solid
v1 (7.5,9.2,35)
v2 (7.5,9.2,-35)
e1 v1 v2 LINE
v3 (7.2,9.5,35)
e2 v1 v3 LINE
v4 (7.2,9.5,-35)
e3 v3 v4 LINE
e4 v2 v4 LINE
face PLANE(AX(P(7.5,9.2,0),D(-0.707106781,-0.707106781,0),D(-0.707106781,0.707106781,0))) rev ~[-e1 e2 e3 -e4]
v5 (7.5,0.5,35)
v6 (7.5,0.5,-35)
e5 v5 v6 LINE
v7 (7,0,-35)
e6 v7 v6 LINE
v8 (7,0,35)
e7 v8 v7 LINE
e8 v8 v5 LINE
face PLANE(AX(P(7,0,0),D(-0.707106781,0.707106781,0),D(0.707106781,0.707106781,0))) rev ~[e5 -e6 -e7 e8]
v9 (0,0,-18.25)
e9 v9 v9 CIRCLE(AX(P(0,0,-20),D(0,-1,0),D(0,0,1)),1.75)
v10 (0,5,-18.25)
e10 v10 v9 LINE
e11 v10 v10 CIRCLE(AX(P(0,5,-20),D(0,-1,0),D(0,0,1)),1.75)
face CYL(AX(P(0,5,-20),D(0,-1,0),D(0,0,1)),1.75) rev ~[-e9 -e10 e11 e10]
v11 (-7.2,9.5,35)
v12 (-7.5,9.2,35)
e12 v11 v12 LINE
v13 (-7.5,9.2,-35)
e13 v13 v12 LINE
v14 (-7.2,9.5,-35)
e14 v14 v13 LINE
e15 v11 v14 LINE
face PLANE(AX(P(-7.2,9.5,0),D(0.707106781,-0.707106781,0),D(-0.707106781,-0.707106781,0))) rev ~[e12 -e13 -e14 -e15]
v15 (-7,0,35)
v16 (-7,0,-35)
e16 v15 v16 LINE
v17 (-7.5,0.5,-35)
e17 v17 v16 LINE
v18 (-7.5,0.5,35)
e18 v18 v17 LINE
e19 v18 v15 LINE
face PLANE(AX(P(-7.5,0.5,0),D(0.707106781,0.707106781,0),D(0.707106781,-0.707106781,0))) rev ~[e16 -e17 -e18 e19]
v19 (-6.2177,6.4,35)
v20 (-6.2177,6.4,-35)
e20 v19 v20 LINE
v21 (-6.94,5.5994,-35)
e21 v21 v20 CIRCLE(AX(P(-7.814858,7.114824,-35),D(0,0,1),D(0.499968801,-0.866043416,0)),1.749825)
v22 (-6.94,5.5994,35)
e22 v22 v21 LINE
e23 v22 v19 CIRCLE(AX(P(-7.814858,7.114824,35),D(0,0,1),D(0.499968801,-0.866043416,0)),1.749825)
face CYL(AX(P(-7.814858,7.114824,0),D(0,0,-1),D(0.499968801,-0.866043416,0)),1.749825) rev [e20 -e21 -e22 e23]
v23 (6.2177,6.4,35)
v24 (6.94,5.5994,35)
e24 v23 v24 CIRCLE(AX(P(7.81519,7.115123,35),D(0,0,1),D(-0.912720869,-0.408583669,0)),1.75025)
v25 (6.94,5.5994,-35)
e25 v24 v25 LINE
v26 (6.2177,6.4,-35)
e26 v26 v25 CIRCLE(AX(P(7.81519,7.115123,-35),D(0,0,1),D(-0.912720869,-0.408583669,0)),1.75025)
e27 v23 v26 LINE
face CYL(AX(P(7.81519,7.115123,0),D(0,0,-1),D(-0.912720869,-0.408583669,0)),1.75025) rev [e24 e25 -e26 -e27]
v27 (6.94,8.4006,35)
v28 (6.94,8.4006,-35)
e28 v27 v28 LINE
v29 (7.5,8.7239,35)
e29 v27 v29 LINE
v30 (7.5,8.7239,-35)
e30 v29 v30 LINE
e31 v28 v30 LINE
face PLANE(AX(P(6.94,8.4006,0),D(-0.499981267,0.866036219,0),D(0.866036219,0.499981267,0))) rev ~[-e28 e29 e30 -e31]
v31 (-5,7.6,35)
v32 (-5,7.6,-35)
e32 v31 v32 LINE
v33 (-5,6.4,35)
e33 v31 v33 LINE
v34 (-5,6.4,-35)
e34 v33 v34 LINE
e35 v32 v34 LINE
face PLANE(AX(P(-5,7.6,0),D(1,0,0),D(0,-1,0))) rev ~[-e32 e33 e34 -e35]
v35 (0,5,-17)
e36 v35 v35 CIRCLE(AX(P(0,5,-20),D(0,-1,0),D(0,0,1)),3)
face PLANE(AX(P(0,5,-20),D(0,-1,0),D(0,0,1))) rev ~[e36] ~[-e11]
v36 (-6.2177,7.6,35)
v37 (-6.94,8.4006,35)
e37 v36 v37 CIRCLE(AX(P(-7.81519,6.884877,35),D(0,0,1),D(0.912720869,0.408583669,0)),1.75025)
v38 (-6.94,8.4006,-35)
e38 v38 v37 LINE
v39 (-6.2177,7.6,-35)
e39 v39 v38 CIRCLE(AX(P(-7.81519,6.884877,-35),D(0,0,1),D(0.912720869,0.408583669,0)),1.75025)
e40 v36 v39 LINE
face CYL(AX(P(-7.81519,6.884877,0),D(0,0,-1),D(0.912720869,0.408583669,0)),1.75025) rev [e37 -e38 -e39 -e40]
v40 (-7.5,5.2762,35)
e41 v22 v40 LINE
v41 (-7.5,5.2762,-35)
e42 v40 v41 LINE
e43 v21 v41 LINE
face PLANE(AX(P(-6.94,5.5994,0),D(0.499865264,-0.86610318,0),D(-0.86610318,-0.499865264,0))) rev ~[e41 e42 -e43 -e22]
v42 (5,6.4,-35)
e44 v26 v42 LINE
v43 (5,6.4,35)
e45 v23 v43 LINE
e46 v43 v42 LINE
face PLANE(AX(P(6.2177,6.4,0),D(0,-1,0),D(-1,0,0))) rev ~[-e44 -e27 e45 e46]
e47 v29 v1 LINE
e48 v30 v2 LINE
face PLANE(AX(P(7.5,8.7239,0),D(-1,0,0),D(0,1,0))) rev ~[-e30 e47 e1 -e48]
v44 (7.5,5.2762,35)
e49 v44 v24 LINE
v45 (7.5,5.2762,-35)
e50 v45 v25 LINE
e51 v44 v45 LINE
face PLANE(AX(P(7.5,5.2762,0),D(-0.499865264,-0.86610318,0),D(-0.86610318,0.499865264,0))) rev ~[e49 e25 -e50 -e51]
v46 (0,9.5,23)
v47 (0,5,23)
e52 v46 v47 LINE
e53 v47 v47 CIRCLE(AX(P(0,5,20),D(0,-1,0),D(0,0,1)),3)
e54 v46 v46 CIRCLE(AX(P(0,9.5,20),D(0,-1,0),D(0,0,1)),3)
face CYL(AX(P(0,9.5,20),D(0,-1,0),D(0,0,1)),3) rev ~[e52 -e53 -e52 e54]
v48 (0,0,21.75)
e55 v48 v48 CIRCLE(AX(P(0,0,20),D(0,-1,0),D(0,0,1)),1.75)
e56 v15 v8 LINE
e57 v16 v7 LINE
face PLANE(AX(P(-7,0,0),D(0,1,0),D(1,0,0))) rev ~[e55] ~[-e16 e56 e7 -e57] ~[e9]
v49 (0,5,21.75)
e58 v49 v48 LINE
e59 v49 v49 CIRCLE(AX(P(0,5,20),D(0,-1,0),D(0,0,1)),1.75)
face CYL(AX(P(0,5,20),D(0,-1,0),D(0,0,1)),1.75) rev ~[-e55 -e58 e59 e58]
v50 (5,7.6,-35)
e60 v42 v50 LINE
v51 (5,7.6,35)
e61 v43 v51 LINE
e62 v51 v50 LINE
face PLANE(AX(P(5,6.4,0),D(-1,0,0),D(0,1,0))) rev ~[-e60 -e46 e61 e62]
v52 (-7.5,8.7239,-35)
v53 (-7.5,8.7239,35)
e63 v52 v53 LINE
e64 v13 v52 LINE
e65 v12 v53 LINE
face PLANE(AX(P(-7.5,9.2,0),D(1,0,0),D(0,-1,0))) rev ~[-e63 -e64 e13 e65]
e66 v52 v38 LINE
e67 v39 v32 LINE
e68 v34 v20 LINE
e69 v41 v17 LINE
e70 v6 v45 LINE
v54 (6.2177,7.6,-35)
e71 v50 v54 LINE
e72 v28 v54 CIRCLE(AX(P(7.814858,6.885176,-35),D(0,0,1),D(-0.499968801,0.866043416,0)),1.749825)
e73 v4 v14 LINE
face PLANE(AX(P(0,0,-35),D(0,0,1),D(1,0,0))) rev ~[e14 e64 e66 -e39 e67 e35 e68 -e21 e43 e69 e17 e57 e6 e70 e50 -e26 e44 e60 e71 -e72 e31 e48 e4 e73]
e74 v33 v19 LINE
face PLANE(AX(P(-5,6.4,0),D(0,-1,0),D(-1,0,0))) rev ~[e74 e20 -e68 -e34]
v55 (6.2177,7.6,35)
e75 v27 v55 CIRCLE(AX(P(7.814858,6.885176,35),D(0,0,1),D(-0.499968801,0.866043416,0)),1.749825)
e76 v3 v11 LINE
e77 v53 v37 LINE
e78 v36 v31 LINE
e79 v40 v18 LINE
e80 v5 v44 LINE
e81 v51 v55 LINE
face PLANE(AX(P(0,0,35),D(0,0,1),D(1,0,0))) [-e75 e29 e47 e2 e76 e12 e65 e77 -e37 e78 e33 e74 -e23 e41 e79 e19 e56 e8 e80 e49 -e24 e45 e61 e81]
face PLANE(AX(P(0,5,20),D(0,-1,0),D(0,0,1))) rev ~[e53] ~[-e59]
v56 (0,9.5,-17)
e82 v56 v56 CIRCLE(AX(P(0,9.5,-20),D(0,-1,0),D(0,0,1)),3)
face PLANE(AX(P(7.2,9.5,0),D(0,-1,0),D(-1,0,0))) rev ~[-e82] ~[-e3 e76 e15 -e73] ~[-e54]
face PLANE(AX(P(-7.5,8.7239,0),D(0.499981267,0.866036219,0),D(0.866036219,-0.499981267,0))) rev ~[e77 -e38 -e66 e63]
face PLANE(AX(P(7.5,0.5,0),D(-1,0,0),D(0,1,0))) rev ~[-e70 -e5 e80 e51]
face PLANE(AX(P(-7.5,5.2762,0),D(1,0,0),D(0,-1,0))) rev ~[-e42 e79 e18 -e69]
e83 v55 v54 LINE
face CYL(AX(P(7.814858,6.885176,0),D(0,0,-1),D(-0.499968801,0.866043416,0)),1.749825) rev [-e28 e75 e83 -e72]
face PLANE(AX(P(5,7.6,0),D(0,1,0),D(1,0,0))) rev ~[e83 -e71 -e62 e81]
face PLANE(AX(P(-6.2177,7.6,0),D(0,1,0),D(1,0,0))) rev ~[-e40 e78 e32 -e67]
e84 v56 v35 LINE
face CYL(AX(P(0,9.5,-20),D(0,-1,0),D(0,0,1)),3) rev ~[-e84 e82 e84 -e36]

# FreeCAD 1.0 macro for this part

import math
import FreeCAD as App
import Part
import Sketcher
Q = App.Units.Quantity

doc = App.newDocument("Part")
body = doc.addObject("PartDesign::Body", "Body")

# Sketch on XY plane
sketch1 = body.newObject("Sketcher::SketchObject", "Sketch")
sketch1.AttachmentSupport = (doc.getObject("XY_Plane"), [""])
sketch1.MapMode = "FlatFace"
sketch1.addGeometry(Part.LineSegment(App.Vector(-7.2, 9.5, 0), App.Vector(-7.5, 9.2, 0)), False)
sketch1.addGeometry(Part.LineSegment(App.Vector(-7.5, 9.2, 0), App.Vector(-7.5, 8.7239, 0)), False)
sketch1.addGeometry(Part.LineSegment(App.Vector(-7.5, 8.7239, 0), App.Vector(-6.94, 8.4006, 0)), False)
sketch1.addGeometry(Part.ArcOfCircle(Part.Circle(App.Vector(-7.815, 6.885, 0), App.Vector(0, 0, 1), 1.750026), math.radians(24.114739), math.radians(60.000909)), False)
sketch1.addGeometry(Part.LineSegment(App.Vector(-6.2177, 7.6, 0), App.Vector(-5, 7.6, 0)), False)
sketch1.addGeometry(Part.LineSegment(App.Vector(-5, 7.6, 0), App.Vector(-5, 6.4, 0)), False)
sketch1.addGeometry(Part.LineSegment(App.Vector(-5, 6.4, 0), App.Vector(-6.2177, 6.4, 0)), False)
sketch1.addGeometry(Part.ArcOfCircle(Part.Circle(App.Vector(-7.815, 7.115, 0), App.Vector(0, 0, 1), 1.750048), math.radians(-60.000909), math.radians(-24.114739)), False)
sketch1.addGeometry(Part.LineSegment(App.Vector(-6.94, 5.5994, 0), App.Vector(-7.5, 5.2762, 0)), False)
sketch1.addGeometry(Part.LineSegment(App.Vector(-7.5, 5.2762, 0), App.Vector(-7.5, 0.5, 0)), False)
sketch1.addGeometry(Part.LineSegment(App.Vector(-7.5, 0.5, 0), App.Vector(-7, 0, 0)), False)
sketch1.addGeometry(Part.LineSegment(App.Vector(-7, 0, 0), App.Vector(7, 0, 0)), False)
sketch1.addGeometry(Part.LineSegment(App.Vector(7, 0, 0), App.Vector(7.5, 0.5, 0)), False)
sketch1.addGeometry(Part.LineSegment(App.Vector(7.5, 0.5, 0), App.Vector(7.5, 5.2762, 0)), False)
sketch1.addGeometry(Part.LineSegment(App.Vector(7.5, 5.2762, 0), App.Vector(6.94, 5.5994, 0)), False)
sketch1.addGeometry(Part.ArcOfCircle(Part.Circle(App.Vector(7.815, 7.115, 0), App.Vector(0, 0, 1), 1.750026), math.radians(-155.885261), math.radians(-119.999091)), False)
sketch1.addGeometry(Part.LineSegment(App.Vector(6.2177, 6.4, 0), App.Vector(5, 6.4, 0)), False)
sketch1.addGeometry(Part.LineSegment(App.Vector(5, 6.4, 0), App.Vector(5, 7.6, 0)), False)
sketch1.addGeometry(Part.LineSegment(App.Vector(5, 7.6, 0), App.Vector(6.2177, 7.6, 0)), False)
sketch1.addGeometry(Part.ArcOfCircle(Part.Circle(App.Vector(7.815, 6.885, 0), App.Vector(0, 0, 1), 1.750048), math.radians(119.999091), math.radians(155.885261)), False)
sketch1.addGeometry(Part.LineSegment(App.Vector(6.94, 8.4006, 0), App.Vector(7.5, 8.7239, 0)), False)
sketch1.addGeometry(Part.LineSegment(App.Vector(7.5, 8.7239, 0), App.Vector(7.5, 9.2, 0)), False)
sketch1.addGeometry(Part.LineSegment(App.Vector(7.5, 9.2, 0), App.Vector(7.2, 9.5, 0)), False)
sketch1.addGeometry(Part.LineSegment(App.Vector(7.2, 9.5, 0), App.Vector(-7.2, 9.5, 0)), False)
sketch1.addConstraint(Sketcher.Constraint("Coincident", 0, 2, 1, 1))
sketch1.addConstraint(Sketcher.Constraint("Coincident", 1, 2, 2, 1))
sketch1.addConstraint(Sketcher.Constraint("Tangent", 2, 2, 3, 2))
sketch1.addConstraint(Sketcher.Constraint("Coincident", 3, 1, 4, 1))
sketch1.addConstraint(Sketcher.Constraint("Coincident", 4, 2, 5, 1))
sketch1.addConstraint(Sketcher.Constraint("Coincident", 5, 2, 6, 1))
sketch1.addConstraint(Sketcher.Constraint("Coincident", 6, 2, 7, 2))
sketch1.addConstraint(Sketcher.Constraint("Tangent", 7, 1, 8, 1))
sketch1.addConstraint(Sketcher.Constraint("Coincident", 8, 2, 9, 1))
sketch1.addConstraint(Sketcher.Constraint("Coincident", 9, 2, 10, 1))
sketch1.addConstraint(Sketcher.Constraint("Coincident", 10, 2, 11, 1))
sketch1.addConstraint(Sketcher.Constraint("Coincident", 11, 2, 12, 1))
sketch1.addConstraint(Sketcher.Constraint("Coincident", 12, 2, 13, 1))
sketch1.addConstraint(Sketcher.Constraint("Coincident", 13, 2, 14, 1))
sketch1.addConstraint(Sketcher.Constraint("Tangent", 14, 2, 15, 2))
sketch1.addConstraint(Sketcher.Constraint("Coincident", 15, 1, 16, 1))
sketch1.addConstraint(Sketcher.Constraint("Coincident", 16, 2, 17, 1))
sketch1.addConstraint(Sketcher.Constraint("Coincident", 17, 2, 18, 1))
sketch1.addConstraint(Sketcher.Constraint("Coincident", 18, 2, 19, 2))
sketch1.addConstraint(Sketcher.Constraint("Tangent", 19, 1, 20, 1))
sketch1.addConstraint(Sketcher.Constraint("Coincident", 20, 2, 21, 1))
sketch1.addConstraint(Sketcher.Constraint("Coincident", 21, 2, 22, 1))
sketch1.addConstraint(Sketcher.Constraint("Coincident", 22, 2, 23, 1))
sketch1.addConstraint(Sketcher.Constraint("Coincident", 23, 2, 0, 1))
sketch1.addConstraint(Sketcher.Constraint("Vertical", 1))
sketch1.addConstraint(Sketcher.Constraint("Horizontal", 4))
sketch1.addConstraint(Sketcher.Constraint("Vertical", 5))
sketch1.addConstraint(Sketcher.Constraint("Horizontal", 6))
sketch1.addConstraint(Sketcher.Constraint("Vertical", 9))
sketch1.addConstraint(Sketcher.Constraint("Horizontal", 11))
sketch1.addConstraint(Sketcher.Constraint("Vertical", 13))
sketch1.addConstraint(Sketcher.Constraint("Horizontal", 16))
sketch1.addConstraint(Sketcher.Constraint("Vertical", 17))
sketch1.addConstraint(Sketcher.Constraint("Horizontal", 18))
sketch1.addConstraint(Sketcher.Constraint("Vertical", 21))
sketch1.addConstraint(Sketcher.Constraint("Horizontal", 23))
sketch1.addConstraint(Sketcher.Constraint("Equal", 3, 7))
sketch1.addConstraint(Sketcher.Constraint("Equal", 7, 15))
sketch1.addConstraint(Sketcher.Constraint("Equal", 15, 19))
sketch1.addConstraint(Sketcher.Constraint("Symmetric", 10, 2, 11, 2, -1, 1))
sketch1.addConstraint(Sketcher.Constraint("Symmetric", 7, 3, 15, 3, -2))
sketch1.addConstraint(Sketcher.Constraint("Symmetric", 3, 3, 19, 3, -2))
sketch1.addConstraint(Sketcher.Constraint("Symmetric", 9, 2, 12, 2, -2))
sketch1.addConstraint(Sketcher.Constraint("Symmetric", 5, 2, 16, 2, -2))
sketch1.addConstraint(Sketcher.Constraint("Symmetric", 1, 2, 20, 2, -2))
sketch1.addConstraint(Sketcher.Constraint("Perpendicular", 0, 10))
sketch1.addConstraint(Sketcher.Constraint("Perpendicular", 10, 12))
sketch1.addConstraint(Sketcher.Constraint("Parallel", 2, 14))
sketch1.addConstraint(Sketcher.Constraint("Parallel", 8, 20))
sketch1.addConstraint(Sketcher.Constraint("Perpendicular", 12, 22))
sketch1.addConstraint(Sketcher.Constraint("Horizontal", 4, 2, 17, 2))
sketch1.addConstraint(Sketcher.Constraint("Horizontal", 0, 2, 21, 2))
sketch1.addConstraint(Sketcher.Constraint("Vertical", 3, 3, 7, 3))
sketch1.addConstraint(Sketcher.Constraint("Vertical", 3, 1, 6, 2))
sketch1.addConstraint(Sketcher.Constraint("Vertical", 1, 2, 8, 2))
sketch1.addConstraint(Sketcher.Constraint("DistanceX", 11, 1, 11, 2, Q("14 mm")))
sketch1.addConstraint(Sketcher.Constraint("Radius", 3, Q("1.75 mm")))
sketch1.addConstraint(Sketcher.Constraint("DistanceX", 23, 2, 23, 1, Q("14.4 mm")))
sketch1.addConstraint(Sketcher.Constraint("DistanceY", 5, 2, 5, 1, Q("1.2 mm")))
sketch1.addConstraint(Sketcher.Constraint("DistanceX", 4, 2, -1, 1, Q("5 mm")))
sketch1.addConstraint(Sketcher.Constraint("DistanceX", 0, 2, -1, 1, Q("7.5 mm")))
sketch1.addConstraint(Sketcher.Constraint("DistanceY", -1, 1, 0, 2, Q("9.2 mm")))
sketch1.addConstraint(Sketcher.Constraint("DistanceY", -1, 1, 3, 1, Q("7.6 mm")))
sketch1.addConstraint(Sketcher.Constraint("Angle", 8, Q("-150.009 deg")))
sketch1.addConstraint(Sketcher.Constraint("DistanceY", 1, 2, 1, 1, Q("0.476 mm")))
sketch1.addConstraint(Sketcher.Constraint("DistanceX", 2, 2, -1, 1, Q("6.94 mm")))
pad1 = body.newObject("PartDesign::Pad", "Pad")
pad1.Profile = sketch1
pad1.Length = 70
pad1.Midplane = True

# Sketch on XZ plane
sketch2 = body.newObject("Sketcher::SketchObject", "Sketch001")
sketch2.AttachmentSupport = (doc.getObject("XZ_Plane"), [""])
sketch2.MapMode = "FlatFace"
sketch2.AttachmentOffset = App.Placement(App.Vector(0, 0, -9.5), App.Rotation())
sketch2.addGeometry(Part.Circle(App.Vector(0, -20, 0), App.Vector(0, 0, 1), 1.75), False)
sketch2.addConstraint(Sketcher.Constraint("PointOnObject", 0, 3, -2))
sketch2.addConstraint(Sketcher.Constraint("Diameter", 0, Q("3.5 mm")))
sketch2.addConstraint(Sketcher.Constraint("DistanceY", 0, 3, -1, 1, Q("20 mm")))
doc.recompute()
hole = body.newObject("PartDesign::Hole", "Hole")
hole.Profile = sketch2
hole.ThreadType = "None"
hole.Diameter = 3.5
hole.DepthType = "Dimension"
hole.Depth = 9.5
hole.DrillPoint = "Flat"
hole.HoleCutType = "Counterbore"
hole.HoleCutDiameter = 6
hole.HoleCutDepth = 4.5
hole.Reversed = True
doc.recompute()

linearpattern = body.newObject("PartDesign::LinearPattern", "LinearPattern")
linearpattern.Originals = [hole]
linearpattern.Direction = (doc.getObject("Z_Axis"), [""])
linearpattern.Mode = "offset"
linearpattern.Offset = 40
linearpattern.Occurrences = 2
body.Tip = linearpattern

doc.recompute()
